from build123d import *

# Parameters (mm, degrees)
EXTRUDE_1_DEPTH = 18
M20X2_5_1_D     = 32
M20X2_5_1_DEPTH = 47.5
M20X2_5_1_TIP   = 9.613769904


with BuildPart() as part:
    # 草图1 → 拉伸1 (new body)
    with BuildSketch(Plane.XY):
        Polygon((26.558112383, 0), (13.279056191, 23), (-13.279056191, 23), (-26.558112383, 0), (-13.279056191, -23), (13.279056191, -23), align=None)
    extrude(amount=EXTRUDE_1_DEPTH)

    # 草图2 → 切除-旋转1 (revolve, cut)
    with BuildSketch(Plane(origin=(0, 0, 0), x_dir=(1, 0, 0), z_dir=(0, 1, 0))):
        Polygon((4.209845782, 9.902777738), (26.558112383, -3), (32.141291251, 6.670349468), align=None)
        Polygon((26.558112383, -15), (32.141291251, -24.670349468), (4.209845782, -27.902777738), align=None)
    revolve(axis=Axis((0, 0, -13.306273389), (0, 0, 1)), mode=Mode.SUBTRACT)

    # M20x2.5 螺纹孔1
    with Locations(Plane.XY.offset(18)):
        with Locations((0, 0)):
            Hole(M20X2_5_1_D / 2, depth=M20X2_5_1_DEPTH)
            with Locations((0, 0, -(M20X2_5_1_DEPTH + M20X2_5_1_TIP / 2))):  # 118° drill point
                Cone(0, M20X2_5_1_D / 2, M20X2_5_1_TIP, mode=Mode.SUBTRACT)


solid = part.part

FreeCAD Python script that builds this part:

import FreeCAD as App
import Part
import Sketcher

V = App.Vector
Q = App.Units.Quantity

doc = App.newDocument("Part")
body = doc.addObject("PartDesign::Body", "Body")

sketch1 = doc.addObject("Sketcher::SketchObject", "Sketch")
body.addObject(sketch1)
sketch1.AttachmentSupport = (doc.XY_Plane, [""])
sketch1.MapMode = "FlatFace"
sketch1.addGeometry([
    Part.LineSegment(V(27, 0, 0), V(13, 23, 0)),
    Part.LineSegment(V(13, 23, 0), V(-13, 23, 0)),
    Part.LineSegment(V(-13, 23, 0), V(-27, 0, 0)),
    Part.LineSegment(V(-27, 0, 0), V(-13, -23, 0)),
    Part.LineSegment(V(-13, -23, 0), V(13, -23, 0)),
    Part.LineSegment(V(13, -23, 0), V(27, 0, 0)),
], False)
sketch1.addConstraint([
    Sketcher.Constraint("Coincident", 0, 2, 1, 1),
    Sketcher.Constraint("Coincident", 1, 2, 2, 1),
    Sketcher.Constraint("Coincident", 2, 2, 3, 1),
    Sketcher.Constraint("Coincident", 3, 2, 4, 1),
    Sketcher.Constraint("Coincident", 4, 2, 5, 1),
    Sketcher.Constraint("Coincident", 5, 2, 0, 1),
    Sketcher.Constraint("Horizontal", 1),
    Sketcher.Constraint("Horizontal", 4),
    Sketcher.Constraint("Symmetric", 0, 2, 3, 2, -1, 1),
    Sketcher.Constraint("Symmetric", 2, 2, 5, 2, -1, 1),
    Sketcher.Constraint("PointOnObject", 2, 2, -1),
    Sketcher.Constraint("Parallel", 2, 5),
    Sketcher.Constraint("Vertical", 1, 2, 3, 2),
    Sketcher.Constraint("Angle", 0, Q("120 deg")),
    Sketcher.Constraint("DistanceY", -1, 1, 0, 2, Q("23 mm")),
    Sketcher.Constraint("DistanceX", 1, 2, 1, 1, Q("26.558112 mm")),
])
pad1 = doc.addObject("PartDesign::Pad", "Pad")
body.addObject(pad1)
pad1.Profile = sketch1
pad1.Length = 18

sketch2 = doc.addObject("Sketcher::SketchObject", "Sketch001")
body.addObject(sketch2)
sketch2.AttachmentSupport = (doc.XZ_Plane, [""])
sketch2.MapMode = "FlatFace"
sketch2.addGeometry([
    Part.LineSegment(V(4, -10, 0), V(27, 3, 0)),
    Part.LineSegment(V(27, 3, 0), V(32, -7, 0)),
    Part.LineSegment(V(32, -7, 0), V(4, -10, 0)),
    Part.LineSegment(V(32, 25, 0), V(27, 15, 0)),
    Part.LineSegment(V(27, 15, 0), V(4, 28, 0)),
    Part.LineSegment(V(4, 28, 0), V(32, 25, 0)),
], False)
sketch2.addConstraint([
    Sketcher.Constraint("Coincident", 0, 2, 1, 1),
    Sketcher.Constraint("Coincident", 1, 2, 2, 1),
    Sketcher.Constraint("Coincident", 2, 2, 0, 1),
    Sketcher.Constraint("Coincident", 3, 2, 4, 1),
    Sketcher.Constraint("Coincident", 4, 2, 5, 1),
    Sketcher.Constraint("Coincident", 5, 2, 3, 1),
    Sketcher.Constraint("Perpendicular", 0, 1),
    Sketcher.Constraint("Perpendicular", 3, 4),
    Sketcher.Constraint("Vertical", 0, 2, 3, 2),
    Sketcher.Constraint("Vertical", 2, 2, 4, 2),
    Sketcher.Constraint("Vertical", 1, 2, 5, 2),
    Sketcher.Constraint("Equal", 1, 3),
    Sketcher.Constraint("Angle", 0, Q("30 deg")),
    Sketcher.Constraint("DistanceY", -1, 1, 0, 2, Q("3 mm")),
    Sketcher.Constraint("DistanceY", -1, 1, 3, 2, Q("15 mm")),
    Sketcher.Constraint("DistanceY", 1, 2, 5, 2, Q("31.340699 mm")),
    Sketcher.Constraint("DistanceX", -1, 1, 1, 2, Q("32.141291 mm")),
    Sketcher.Constraint("DistanceY", 2, 2, 1, 2, Q("3.232428 mm")),
])
groove = doc.addObject("PartDesign::Groove", "Groove")
body.addObject(groove)
groove.Profile = sketch2
groove.ReferenceAxis = (sketch2, ["V_Axis"])
groove.Angle = 360

sketch3 = doc.addObject("Sketcher::SketchObject", "Sketch002")
body.addObject(sketch3)
sketch3.AttachmentSupport = (doc.XY_Plane, [""])
sketch3.MapMode = "FlatFace"
sketch3.AttachmentOffset = App.Placement(V(0, 0, 18), App.Rotation())
sketch3.addGeometry(Part.Circle(V(0, 0, 0), V(0, 0, 1), 16), False)
sketch3.addConstraint([
    Sketcher.Constraint("Coincident", 0, 3, -1, 1),
    Sketcher.Constraint("Diameter", 0, Q("32 mm")),
])
doc.recompute()
hole = doc.addObject("PartDesign::Hole", "Hole")
body.addObject(hole)
hole.Profile = sketch3
hole.ThreadType = "None"
hole.Diameter = 32
hole.DepthType = "Dimension"
hole.Depth = 47.5
hole.DrillPoint = "Angled"
hole.DrillPointAngle = 118

doc.recompute()
